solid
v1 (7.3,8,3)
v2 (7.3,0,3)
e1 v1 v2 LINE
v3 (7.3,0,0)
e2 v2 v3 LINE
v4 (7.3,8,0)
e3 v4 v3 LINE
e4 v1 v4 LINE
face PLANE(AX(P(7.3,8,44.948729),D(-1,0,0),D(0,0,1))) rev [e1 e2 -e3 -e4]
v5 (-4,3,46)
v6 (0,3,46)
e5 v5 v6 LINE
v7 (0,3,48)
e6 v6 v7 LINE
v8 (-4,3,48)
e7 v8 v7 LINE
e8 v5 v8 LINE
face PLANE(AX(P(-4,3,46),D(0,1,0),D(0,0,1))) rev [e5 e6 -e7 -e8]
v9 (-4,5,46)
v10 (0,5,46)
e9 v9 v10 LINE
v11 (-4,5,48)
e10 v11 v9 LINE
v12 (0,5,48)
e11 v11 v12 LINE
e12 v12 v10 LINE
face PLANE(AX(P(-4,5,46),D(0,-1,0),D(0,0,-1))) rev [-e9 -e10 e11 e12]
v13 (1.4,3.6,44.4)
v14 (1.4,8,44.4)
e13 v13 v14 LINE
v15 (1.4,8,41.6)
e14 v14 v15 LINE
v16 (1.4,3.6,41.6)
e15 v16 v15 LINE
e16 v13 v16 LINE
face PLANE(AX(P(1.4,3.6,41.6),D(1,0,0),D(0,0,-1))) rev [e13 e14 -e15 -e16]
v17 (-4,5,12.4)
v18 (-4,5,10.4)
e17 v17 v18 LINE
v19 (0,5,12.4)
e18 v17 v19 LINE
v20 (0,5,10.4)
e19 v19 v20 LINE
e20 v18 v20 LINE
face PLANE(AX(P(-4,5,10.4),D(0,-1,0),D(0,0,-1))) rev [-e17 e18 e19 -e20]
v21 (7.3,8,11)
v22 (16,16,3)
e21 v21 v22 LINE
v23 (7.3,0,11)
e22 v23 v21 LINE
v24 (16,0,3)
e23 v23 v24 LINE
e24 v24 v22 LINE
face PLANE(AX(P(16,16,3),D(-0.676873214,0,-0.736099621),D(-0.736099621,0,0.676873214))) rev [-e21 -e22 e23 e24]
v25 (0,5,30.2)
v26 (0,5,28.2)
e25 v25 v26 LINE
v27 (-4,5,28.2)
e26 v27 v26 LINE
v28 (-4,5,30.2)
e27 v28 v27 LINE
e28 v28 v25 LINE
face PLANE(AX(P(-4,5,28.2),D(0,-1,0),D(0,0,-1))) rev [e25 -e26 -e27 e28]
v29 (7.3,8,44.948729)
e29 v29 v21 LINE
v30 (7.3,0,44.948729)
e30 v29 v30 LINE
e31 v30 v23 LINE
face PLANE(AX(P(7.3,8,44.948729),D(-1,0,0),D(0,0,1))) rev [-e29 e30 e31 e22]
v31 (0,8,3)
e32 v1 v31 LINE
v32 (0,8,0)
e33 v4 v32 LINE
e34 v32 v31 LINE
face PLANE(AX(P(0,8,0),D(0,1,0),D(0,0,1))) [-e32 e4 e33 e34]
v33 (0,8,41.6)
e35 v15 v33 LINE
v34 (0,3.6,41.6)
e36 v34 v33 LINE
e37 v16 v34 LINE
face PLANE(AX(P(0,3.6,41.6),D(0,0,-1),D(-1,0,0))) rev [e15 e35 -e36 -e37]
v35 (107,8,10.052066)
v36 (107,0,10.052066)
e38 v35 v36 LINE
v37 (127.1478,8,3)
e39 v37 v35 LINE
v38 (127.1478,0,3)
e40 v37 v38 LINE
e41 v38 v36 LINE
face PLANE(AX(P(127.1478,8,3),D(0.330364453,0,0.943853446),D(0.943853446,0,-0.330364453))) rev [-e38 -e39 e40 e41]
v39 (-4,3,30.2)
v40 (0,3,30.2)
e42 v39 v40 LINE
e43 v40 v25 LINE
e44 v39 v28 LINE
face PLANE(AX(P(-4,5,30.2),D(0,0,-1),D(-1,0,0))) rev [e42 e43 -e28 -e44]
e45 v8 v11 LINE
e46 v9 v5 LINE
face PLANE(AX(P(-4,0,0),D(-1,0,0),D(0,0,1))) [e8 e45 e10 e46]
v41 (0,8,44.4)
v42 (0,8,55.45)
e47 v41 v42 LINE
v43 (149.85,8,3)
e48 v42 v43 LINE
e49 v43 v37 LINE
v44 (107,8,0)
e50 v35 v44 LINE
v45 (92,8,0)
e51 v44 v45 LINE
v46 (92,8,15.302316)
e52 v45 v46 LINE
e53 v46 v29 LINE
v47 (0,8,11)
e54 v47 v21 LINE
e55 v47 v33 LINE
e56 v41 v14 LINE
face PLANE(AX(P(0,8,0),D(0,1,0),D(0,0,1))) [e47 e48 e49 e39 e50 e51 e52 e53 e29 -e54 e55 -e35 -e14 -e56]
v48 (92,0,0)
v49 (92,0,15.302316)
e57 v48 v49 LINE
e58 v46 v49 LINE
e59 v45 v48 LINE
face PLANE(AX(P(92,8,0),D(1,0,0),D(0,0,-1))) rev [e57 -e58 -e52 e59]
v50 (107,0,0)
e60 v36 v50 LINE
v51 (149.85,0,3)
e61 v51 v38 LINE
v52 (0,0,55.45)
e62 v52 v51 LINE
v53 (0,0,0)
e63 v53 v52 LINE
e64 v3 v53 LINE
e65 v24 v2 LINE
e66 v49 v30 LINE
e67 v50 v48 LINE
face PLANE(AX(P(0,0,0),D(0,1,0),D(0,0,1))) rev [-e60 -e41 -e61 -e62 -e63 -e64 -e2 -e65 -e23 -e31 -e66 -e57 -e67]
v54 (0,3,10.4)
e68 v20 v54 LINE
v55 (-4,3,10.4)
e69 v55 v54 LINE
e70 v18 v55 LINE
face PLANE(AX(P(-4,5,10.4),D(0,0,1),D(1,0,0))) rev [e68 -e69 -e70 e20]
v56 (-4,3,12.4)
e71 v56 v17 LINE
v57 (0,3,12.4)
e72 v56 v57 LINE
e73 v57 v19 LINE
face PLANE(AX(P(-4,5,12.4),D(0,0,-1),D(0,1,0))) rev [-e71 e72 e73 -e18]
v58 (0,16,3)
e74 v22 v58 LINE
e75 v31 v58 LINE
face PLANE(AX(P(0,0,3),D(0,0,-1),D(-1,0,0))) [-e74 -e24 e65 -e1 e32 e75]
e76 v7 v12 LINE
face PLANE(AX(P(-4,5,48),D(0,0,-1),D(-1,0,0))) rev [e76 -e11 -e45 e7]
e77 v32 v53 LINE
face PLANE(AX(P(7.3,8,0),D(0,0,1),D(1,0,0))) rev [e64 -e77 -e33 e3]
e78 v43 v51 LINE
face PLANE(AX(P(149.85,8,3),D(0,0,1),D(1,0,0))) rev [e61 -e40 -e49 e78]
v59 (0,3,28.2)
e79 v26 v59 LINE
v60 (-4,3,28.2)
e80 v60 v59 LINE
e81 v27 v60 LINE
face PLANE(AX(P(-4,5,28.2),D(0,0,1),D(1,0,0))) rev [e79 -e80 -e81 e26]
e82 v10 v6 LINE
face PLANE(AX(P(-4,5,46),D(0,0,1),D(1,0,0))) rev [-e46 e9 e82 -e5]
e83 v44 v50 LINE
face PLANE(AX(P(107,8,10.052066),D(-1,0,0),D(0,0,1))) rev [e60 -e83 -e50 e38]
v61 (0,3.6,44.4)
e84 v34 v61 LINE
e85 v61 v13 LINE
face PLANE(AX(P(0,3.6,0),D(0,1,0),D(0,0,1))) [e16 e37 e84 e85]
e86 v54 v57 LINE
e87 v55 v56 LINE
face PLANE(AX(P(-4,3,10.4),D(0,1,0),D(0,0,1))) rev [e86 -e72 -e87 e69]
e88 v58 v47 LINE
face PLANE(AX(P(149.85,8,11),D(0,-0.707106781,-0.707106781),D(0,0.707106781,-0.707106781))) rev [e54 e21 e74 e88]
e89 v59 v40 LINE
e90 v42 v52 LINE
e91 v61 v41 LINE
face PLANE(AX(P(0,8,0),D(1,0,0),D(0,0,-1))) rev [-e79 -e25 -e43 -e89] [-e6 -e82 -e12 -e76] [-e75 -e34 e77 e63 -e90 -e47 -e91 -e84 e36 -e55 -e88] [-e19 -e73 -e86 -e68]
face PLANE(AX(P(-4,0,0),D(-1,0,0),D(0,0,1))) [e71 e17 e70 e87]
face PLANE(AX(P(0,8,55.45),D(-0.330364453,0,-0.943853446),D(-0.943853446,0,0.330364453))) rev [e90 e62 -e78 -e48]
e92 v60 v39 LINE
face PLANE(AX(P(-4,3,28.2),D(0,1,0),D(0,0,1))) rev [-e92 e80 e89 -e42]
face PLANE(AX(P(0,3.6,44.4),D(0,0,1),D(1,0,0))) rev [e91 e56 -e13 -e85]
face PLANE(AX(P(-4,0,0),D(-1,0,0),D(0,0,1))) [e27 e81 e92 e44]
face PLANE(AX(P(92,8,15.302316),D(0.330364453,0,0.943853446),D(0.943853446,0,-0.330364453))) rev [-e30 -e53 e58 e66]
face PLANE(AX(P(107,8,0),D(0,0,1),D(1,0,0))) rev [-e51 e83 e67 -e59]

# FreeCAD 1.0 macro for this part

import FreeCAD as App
import Part
import Sketcher


def add_polygon(sketch, points):
    """Adds a closed chain of lines whose ends are joined by coincident constraints."""
    first, n = sketch.GeometryCount, len(points)
    for a, b in zip(points, points[1:] + points[:1]):
        sketch.addGeometry(Part.LineSegment(App.Vector(*a, 0), App.Vector(*b, 0)), False)
    for i in range(n):
        sketch.addConstraint(Sketcher.Constraint("Coincident", first + i, 2, first + (i + 1) % n, 1))

doc = App.newDocument("Part")
body = doc.addObject("PartDesign::Body", "Body")

sketch1 = body.newObject("Sketcher::SketchObject", "Sketch")
sketch1.AttachmentSupport = (doc.getObject("XZ_Plane"), [""])
sketch1.MapMode = "FlatFace"
add_polygon(sketch1, [(0, 0), (0, 55), (150, 3), (127, 3), (107, 10), (107, 0), (92, 0), (92, 15), (7, 45), (7, 0)])
sketch1.addConstraint([
    Sketcher.Constraint("Vertical", 0),
    Sketcher.Constraint("Horizontal", 2),
    Sketcher.Constraint("Vertical", 4),
    Sketcher.Constraint("Horizontal", 5),
    Sketcher.Constraint("Vertical", 6),
    Sketcher.Constraint("Vertical", 8),
    Sketcher.Constraint("Horizontal", 9),
    Sketcher.Constraint("Coincident", 9, 2, -1, 1),
    Sketcher.Constraint("PointOnObject", 4, 2, -1),
    Sketcher.Constraint("Parallel", 1, 3),
    Sketcher.Constraint("Parallel", 3, 7),
    Sketcher.Constraint("DistanceX", 5, 2, 5, 1, 15.0),
    Sketcher.Constraint("DistanceX", 9, 2, 9, 1, 7.3),
    Sketcher.Constraint("DistanceY", -1, 1, 1, 2, 3.0),
    Sketcher.Constraint("DistanceX", -1, 1, 3, 2, 107.0),
    Sketcher.Constraint("DistanceY", 0, 1, 0, 2, 55.45),
    Sketcher.Constraint("DistanceX", -1, 1, 1, 2, 149.85),
    Sketcher.Constraint("DistanceX", 2, 2, 2, 1, 22.7022),
    Sketcher.Constraint("DistanceY", 8, 2, 8, 1, 44.948729),
])
pad1 = body.newObject("PartDesign::Pad", "Pad")
pad1.Profile = sketch1
pad1.Length = 8
pad1.Reversed = True

sketch2 = body.newObject("Sketcher::SketchObject", "Sketch001")
sketch2.AttachmentSupport = (doc.getObject("XZ_Plane"), [""])
sketch2.MapMode = "FlatFace"
sketch2.AttachmentOffset = App.Placement(App.Vector(0, 0, -8), App.Rotation())
add_polygon(sketch2, [(0, 41.6), (0, 44.4), (1.4, 44.4), (1.4, 41.6)])
sketch2.addConstraint([
    Sketcher.Constraint("Vertical", 0),
    Sketcher.Constraint("Horizontal", 1),
    Sketcher.Constraint("Vertical", 2),
    Sketcher.Constraint("Horizontal", 3),
    Sketcher.Constraint("PointOnObject", 0, 2, -2),
    Sketcher.Constraint("DistanceX", 1, 1, 1, 2, 1.4),
    Sketcher.Constraint("DistanceY", 0, 1, 0, 2, 2.8),
    Sketcher.Constraint("DistanceY", -1, 1, 0, 2, 44.4),
])
pocket1 = body.newObject("PartDesign::Pocket", "Pocket")
pocket1.Profile = sketch2
pocket1.Length = 4.4
pocket1.Reversed = True

sketch3 = body.newObject("Sketcher::SketchObject", "Sketch002")
sketch3.AttachmentSupport = (doc.getObject("YZ_Plane"), [""])
sketch3.MapMode = "FlatFace"
add_polygon(sketch3, [(5, 10.4), (3, 10.4), (3, 12.4), (5, 12.4)])
add_polygon(sketch3, [(5, 28.2), (3, 28.2), (3, 30.2), (5, 30.2)])
add_polygon(sketch3, [(5, 46), (3, 46), (3, 48), (5, 48)])
sketch3.addConstraint([
    Sketcher.Constraint("Horizontal", 0),
    Sketcher.Constraint("Vertical", 1),
    Sketcher.Constraint("Horizontal", 2),
    Sketcher.Constraint("Vertical", 3),
    Sketcher.Constraint("Horizontal", 4),
    Sketcher.Constraint("Vertical", 5),
    Sketcher.Constraint("Horizontal", 6),
    Sketcher.Constraint("Vertical", 7),
    Sketcher.Constraint("Horizontal", 8),
    Sketcher.Constraint("Vertical", 9),
    Sketcher.Constraint("Horizontal", 10),
    Sketcher.Constraint("Vertical", 11),
    Sketcher.Constraint("Vertical", 1, 2, 4, 2),
    Sketcher.Constraint("Vertical", 3, 2, 6, 2),
    Sketcher.Constraint("Vertical", 5, 2, 8, 2),
    Sketcher.Constraint("Vertical", 7, 2, 10, 2),
    Sketcher.Constraint("Equal", 10, 1),
    Sketcher.Constraint("Equal", 3, 5),
    Sketcher.Constraint("Equal", 7, 9),
    Sketcher.Constraint("DistanceX", 0, 2, 0, 1, 2.0),
    Sketcher.Constraint("DistanceX", -1, 1, 0, 2, 3.0),
    Sketcher.Constraint("DistanceY", -1, 1, 8, 2, 46.0),
    Sketcher.Constraint("DistanceY", -1, 1, 0, 2, 10.4),
    Sketcher.Constraint("DistanceY", -1, 1, 4, 2, 28.2),
])
pad2 = body.newObject("PartDesign::Pad", "Pad001")
pad2.Profile = sketch3
pad2.Length = 4
pad2.Reversed = True

sketch4 = body.newObject("Sketcher::SketchObject", "Sketch003")
sketch4.AttachmentSupport = (doc.getObject("XZ_Plane"), [""])
sketch4.MapMode = "FlatFace"
sketch4.AttachmentOffset = App.Placement(App.Vector(0, 0, -16), App.Rotation())
add_polygon(sketch4, [(0, 3), (0, 11), (16, 11), (16, 3)])
sketch4.addConstraint([
    Sketcher.Constraint("Vertical", 0),
    Sketcher.Constraint("Horizontal", 1),
    Sketcher.Constraint("Vertical", 2),
    Sketcher.Constraint("Horizontal", 3),
    Sketcher.Constraint("PointOnObject", 0, 2, -2),
    Sketcher.Constraint("DistanceX", 1, 1, 1, 2, 16.0),
    Sketcher.Constraint("DistanceY", 0, 1, 0, 2, 8.0),
    Sketcher.Constraint("DistanceY", -1, 1, 0, 2, 11.0),
])
pad3 = body.newObject("PartDesign::Pad", "Pad002")
pad3.Profile = sketch4
pad3.Length = 16

sketch5 = body.newObject("Sketcher::SketchObject", "Sketch004")
sketch5.AttachmentSupport = (doc.getObject("YZ_Plane"), [""])
sketch5.MapMode = "FlatFace"
add_polygon(sketch5, [(16, 11), (16, 3), (8, 11)])
sketch5.addConstraint([
    Sketcher.Constraint("Vertical", 0),
    Sketcher.Constraint("Horizontal", 2),
    Sketcher.Constraint("Equal", 2, 0),
    Sketcher.Constraint("DistanceX", 2, 1, 2, 2, 8.0),
    Sketcher.Constraint("DistanceX", -1, 1, 0, 2, 16.0),
    Sketcher.Constraint("DistanceY", -1, 1, 0, 2, 3.0),
])
pocket2 = body.newObject("PartDesign::Pocket", "Pocket001")
pocket2.Profile = sketch5
pocket2.Type = "ThroughAll"
pocket2.Reversed = True

sketch6 = body.newObject("Sketcher::SketchObject", "Sketch005")
sketch6.AttachmentSupport = (doc.getObject("XZ_Plane"), [""])
sketch6.MapMode = "FlatFace"
add_polygon(sketch6, [(16, 11), (7, 11), (16, 3)])
sketch6.addConstraint([
    Sketcher.Constraint("Horizontal", 0),
    Sketcher.Constraint("Vertical", 2),
    Sketcher.Constraint("DistanceY", 2, 1, 2, 2, 8.0),
    Sketcher.Constraint("DistanceX", 0, 2, 0, 1, 8.7),
    Sketcher.Constraint("DistanceY", -1, 1, 0, 2, 11.0),
    Sketcher.Constraint("DistanceX", -1, 1, 1, 2, 16.0),
])
pocket3 = body.newObject("PartDesign::Pocket", "Pocket002")
pocket3.Profile = sketch6
pocket3.Type = "ThroughAll"

doc.recompute()
